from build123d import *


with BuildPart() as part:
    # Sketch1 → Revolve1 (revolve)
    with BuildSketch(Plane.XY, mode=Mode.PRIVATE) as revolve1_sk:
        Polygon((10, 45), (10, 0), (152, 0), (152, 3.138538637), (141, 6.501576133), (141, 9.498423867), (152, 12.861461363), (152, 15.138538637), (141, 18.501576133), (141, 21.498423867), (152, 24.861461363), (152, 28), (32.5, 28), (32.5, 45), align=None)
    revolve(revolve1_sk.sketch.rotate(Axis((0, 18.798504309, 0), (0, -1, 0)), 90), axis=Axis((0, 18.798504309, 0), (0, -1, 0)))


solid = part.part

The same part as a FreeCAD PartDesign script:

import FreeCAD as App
import Part
import Sketcher
from FreeCAD import Vector
Q = App.Units.Quantity


def add_polygon(sketch, points):
    """Adds a closed chain of lines whose ends are joined by coincident constraints."""
    first, n = sketch.GeometryCount, len(points)
    for a, b in zip(points, points[1:] + points[:1]):
        sketch.addGeometry(Part.LineSegment(App.Vector(*a, 0), App.Vector(*b, 0)), False)
    for i in range(n):
        sketch.addConstraint(Sketcher.Constraint("Coincident", first + i, 2, first + (i + 1) % n, 1))

doc = App.newDocument("Part")
body = doc.addObject("PartDesign::Body", "Body")

# Sketch on XY plane
sketch1 = body.newObject("Sketcher::SketchObject", "Sketch")
sketch1.AttachmentSupport = (doc.getObject("XY_Plane"), [""])
sketch1.MapMode = "FlatFace"
add_polygon(sketch1, [(10, 45), (10, 0), (152, 0), (152, 3.1), (141, 6.5), (141, 9.5), (152, 12.9), (152, 15.1), (141, 18.5), (141, 21.5), (152, 24.9), (152, 28), (32.5, 28), (32.5, 45)])  # lines 0-13
sketch1.addConstraint([
    Sketcher.Constraint("Vertical", 0),
    Sketcher.Constraint("Horizontal", 1),
    Sketcher.Constraint("Vertical", 2),
    Sketcher.Constraint("Vertical", 4),
    Sketcher.Constraint("Vertical", 6),
    Sketcher.Constraint("Vertical", 8),
    Sketcher.Constraint("Vertical", 10),
    Sketcher.Constraint("Horizontal", 11),
    Sketcher.Constraint("Vertical", 12),
    Sketcher.Constraint("Horizontal", 13),
    Sketcher.Constraint("PointOnObject", 0, 2, -1),
    Sketcher.Constraint("Parallel", 3, 7),
    Sketcher.Constraint("Parallel", 5, 9),
    Sketcher.Constraint("Vertical", 2, 2, 5, 2),
    Sketcher.Constraint("Vertical", 4, 2, 7, 2),
    Sketcher.Constraint("Vertical", 6, 2, 9, 2),
    Sketcher.Constraint("Equal", 4, 8),
    Sketcher.Constraint("Equal", 2, 10),
    Sketcher.Constraint("Equal", 3, 5),
    Sketcher.Constraint("DistanceX", 1, 1, 1, 2, 142.0),
    Sketcher.Constraint("DistanceY", 0, 2, 0, 1, 45.0),
    Sketcher.Constraint("DistanceY", 12, 1, 12, 2, 17.0),
    Sketcher.Constraint("Angle", 3, Q("163 deg")),
    Sketcher.Constraint("DistanceX", 11, 2, 11, 1, 119.5),
    Sketcher.Constraint("DistanceX", -1, 1, 0, 2, 10.0),
    Sketcher.Constraint("DistanceX", -1, 1, 3, 2, 141.0),
    Sketcher.Constraint("DistanceY", 2, 2, 6, 2, 12.0),
    Sketcher.Constraint("DistanceY", 2, 1, 2, 2, 3.138539),
])
revolution = body.newObject("PartDesign::Revolution", "Revolution")
revolution.Profile = sketch1
revolution.ReferenceAxis = (sketch1, ["V_Axis"])
revolution.Angle = 360

doc.recompute()
